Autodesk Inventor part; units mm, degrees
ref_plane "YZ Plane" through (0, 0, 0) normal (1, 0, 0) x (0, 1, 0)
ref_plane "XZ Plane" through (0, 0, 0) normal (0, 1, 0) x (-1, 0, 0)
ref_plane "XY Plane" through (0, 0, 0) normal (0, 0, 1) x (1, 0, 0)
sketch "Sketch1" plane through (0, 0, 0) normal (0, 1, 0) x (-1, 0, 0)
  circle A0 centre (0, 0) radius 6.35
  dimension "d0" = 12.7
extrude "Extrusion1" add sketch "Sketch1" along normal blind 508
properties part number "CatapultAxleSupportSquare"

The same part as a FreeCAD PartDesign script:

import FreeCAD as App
import Part
import Sketcher
from FreeCAD import Vector
Q = App.Units.Quantity

doc = App.newDocument("Part")
body = doc.addObject("PartDesign::Body", "Body")

sketch1 = doc.addObject("Sketcher::SketchObject", "Sketch")
body.addObject(sketch1)
sketch1.AttachmentSupport = (doc.XZ_Plane, [""])
sketch1.MapMode = "FlatFace"
sketch1.addGeometry(Part.Circle(Vector(0, 0, 0), Vector(0, 0, 1), 6.35), False)
sketch1.addConstraint(Sketcher.Constraint("Coincident", 0, 3, -1, 1))
sketch1.addConstraint(Sketcher.Constraint("Diameter", 0, Q("0.5 in")))
pad1 = doc.addObject("PartDesign::Pad", "Pad")
body.addObject(pad1)
pad1.Profile = sketch1
pad1.Length = Q("20 in")
pad1.Reversed = True

doc.recompute()
